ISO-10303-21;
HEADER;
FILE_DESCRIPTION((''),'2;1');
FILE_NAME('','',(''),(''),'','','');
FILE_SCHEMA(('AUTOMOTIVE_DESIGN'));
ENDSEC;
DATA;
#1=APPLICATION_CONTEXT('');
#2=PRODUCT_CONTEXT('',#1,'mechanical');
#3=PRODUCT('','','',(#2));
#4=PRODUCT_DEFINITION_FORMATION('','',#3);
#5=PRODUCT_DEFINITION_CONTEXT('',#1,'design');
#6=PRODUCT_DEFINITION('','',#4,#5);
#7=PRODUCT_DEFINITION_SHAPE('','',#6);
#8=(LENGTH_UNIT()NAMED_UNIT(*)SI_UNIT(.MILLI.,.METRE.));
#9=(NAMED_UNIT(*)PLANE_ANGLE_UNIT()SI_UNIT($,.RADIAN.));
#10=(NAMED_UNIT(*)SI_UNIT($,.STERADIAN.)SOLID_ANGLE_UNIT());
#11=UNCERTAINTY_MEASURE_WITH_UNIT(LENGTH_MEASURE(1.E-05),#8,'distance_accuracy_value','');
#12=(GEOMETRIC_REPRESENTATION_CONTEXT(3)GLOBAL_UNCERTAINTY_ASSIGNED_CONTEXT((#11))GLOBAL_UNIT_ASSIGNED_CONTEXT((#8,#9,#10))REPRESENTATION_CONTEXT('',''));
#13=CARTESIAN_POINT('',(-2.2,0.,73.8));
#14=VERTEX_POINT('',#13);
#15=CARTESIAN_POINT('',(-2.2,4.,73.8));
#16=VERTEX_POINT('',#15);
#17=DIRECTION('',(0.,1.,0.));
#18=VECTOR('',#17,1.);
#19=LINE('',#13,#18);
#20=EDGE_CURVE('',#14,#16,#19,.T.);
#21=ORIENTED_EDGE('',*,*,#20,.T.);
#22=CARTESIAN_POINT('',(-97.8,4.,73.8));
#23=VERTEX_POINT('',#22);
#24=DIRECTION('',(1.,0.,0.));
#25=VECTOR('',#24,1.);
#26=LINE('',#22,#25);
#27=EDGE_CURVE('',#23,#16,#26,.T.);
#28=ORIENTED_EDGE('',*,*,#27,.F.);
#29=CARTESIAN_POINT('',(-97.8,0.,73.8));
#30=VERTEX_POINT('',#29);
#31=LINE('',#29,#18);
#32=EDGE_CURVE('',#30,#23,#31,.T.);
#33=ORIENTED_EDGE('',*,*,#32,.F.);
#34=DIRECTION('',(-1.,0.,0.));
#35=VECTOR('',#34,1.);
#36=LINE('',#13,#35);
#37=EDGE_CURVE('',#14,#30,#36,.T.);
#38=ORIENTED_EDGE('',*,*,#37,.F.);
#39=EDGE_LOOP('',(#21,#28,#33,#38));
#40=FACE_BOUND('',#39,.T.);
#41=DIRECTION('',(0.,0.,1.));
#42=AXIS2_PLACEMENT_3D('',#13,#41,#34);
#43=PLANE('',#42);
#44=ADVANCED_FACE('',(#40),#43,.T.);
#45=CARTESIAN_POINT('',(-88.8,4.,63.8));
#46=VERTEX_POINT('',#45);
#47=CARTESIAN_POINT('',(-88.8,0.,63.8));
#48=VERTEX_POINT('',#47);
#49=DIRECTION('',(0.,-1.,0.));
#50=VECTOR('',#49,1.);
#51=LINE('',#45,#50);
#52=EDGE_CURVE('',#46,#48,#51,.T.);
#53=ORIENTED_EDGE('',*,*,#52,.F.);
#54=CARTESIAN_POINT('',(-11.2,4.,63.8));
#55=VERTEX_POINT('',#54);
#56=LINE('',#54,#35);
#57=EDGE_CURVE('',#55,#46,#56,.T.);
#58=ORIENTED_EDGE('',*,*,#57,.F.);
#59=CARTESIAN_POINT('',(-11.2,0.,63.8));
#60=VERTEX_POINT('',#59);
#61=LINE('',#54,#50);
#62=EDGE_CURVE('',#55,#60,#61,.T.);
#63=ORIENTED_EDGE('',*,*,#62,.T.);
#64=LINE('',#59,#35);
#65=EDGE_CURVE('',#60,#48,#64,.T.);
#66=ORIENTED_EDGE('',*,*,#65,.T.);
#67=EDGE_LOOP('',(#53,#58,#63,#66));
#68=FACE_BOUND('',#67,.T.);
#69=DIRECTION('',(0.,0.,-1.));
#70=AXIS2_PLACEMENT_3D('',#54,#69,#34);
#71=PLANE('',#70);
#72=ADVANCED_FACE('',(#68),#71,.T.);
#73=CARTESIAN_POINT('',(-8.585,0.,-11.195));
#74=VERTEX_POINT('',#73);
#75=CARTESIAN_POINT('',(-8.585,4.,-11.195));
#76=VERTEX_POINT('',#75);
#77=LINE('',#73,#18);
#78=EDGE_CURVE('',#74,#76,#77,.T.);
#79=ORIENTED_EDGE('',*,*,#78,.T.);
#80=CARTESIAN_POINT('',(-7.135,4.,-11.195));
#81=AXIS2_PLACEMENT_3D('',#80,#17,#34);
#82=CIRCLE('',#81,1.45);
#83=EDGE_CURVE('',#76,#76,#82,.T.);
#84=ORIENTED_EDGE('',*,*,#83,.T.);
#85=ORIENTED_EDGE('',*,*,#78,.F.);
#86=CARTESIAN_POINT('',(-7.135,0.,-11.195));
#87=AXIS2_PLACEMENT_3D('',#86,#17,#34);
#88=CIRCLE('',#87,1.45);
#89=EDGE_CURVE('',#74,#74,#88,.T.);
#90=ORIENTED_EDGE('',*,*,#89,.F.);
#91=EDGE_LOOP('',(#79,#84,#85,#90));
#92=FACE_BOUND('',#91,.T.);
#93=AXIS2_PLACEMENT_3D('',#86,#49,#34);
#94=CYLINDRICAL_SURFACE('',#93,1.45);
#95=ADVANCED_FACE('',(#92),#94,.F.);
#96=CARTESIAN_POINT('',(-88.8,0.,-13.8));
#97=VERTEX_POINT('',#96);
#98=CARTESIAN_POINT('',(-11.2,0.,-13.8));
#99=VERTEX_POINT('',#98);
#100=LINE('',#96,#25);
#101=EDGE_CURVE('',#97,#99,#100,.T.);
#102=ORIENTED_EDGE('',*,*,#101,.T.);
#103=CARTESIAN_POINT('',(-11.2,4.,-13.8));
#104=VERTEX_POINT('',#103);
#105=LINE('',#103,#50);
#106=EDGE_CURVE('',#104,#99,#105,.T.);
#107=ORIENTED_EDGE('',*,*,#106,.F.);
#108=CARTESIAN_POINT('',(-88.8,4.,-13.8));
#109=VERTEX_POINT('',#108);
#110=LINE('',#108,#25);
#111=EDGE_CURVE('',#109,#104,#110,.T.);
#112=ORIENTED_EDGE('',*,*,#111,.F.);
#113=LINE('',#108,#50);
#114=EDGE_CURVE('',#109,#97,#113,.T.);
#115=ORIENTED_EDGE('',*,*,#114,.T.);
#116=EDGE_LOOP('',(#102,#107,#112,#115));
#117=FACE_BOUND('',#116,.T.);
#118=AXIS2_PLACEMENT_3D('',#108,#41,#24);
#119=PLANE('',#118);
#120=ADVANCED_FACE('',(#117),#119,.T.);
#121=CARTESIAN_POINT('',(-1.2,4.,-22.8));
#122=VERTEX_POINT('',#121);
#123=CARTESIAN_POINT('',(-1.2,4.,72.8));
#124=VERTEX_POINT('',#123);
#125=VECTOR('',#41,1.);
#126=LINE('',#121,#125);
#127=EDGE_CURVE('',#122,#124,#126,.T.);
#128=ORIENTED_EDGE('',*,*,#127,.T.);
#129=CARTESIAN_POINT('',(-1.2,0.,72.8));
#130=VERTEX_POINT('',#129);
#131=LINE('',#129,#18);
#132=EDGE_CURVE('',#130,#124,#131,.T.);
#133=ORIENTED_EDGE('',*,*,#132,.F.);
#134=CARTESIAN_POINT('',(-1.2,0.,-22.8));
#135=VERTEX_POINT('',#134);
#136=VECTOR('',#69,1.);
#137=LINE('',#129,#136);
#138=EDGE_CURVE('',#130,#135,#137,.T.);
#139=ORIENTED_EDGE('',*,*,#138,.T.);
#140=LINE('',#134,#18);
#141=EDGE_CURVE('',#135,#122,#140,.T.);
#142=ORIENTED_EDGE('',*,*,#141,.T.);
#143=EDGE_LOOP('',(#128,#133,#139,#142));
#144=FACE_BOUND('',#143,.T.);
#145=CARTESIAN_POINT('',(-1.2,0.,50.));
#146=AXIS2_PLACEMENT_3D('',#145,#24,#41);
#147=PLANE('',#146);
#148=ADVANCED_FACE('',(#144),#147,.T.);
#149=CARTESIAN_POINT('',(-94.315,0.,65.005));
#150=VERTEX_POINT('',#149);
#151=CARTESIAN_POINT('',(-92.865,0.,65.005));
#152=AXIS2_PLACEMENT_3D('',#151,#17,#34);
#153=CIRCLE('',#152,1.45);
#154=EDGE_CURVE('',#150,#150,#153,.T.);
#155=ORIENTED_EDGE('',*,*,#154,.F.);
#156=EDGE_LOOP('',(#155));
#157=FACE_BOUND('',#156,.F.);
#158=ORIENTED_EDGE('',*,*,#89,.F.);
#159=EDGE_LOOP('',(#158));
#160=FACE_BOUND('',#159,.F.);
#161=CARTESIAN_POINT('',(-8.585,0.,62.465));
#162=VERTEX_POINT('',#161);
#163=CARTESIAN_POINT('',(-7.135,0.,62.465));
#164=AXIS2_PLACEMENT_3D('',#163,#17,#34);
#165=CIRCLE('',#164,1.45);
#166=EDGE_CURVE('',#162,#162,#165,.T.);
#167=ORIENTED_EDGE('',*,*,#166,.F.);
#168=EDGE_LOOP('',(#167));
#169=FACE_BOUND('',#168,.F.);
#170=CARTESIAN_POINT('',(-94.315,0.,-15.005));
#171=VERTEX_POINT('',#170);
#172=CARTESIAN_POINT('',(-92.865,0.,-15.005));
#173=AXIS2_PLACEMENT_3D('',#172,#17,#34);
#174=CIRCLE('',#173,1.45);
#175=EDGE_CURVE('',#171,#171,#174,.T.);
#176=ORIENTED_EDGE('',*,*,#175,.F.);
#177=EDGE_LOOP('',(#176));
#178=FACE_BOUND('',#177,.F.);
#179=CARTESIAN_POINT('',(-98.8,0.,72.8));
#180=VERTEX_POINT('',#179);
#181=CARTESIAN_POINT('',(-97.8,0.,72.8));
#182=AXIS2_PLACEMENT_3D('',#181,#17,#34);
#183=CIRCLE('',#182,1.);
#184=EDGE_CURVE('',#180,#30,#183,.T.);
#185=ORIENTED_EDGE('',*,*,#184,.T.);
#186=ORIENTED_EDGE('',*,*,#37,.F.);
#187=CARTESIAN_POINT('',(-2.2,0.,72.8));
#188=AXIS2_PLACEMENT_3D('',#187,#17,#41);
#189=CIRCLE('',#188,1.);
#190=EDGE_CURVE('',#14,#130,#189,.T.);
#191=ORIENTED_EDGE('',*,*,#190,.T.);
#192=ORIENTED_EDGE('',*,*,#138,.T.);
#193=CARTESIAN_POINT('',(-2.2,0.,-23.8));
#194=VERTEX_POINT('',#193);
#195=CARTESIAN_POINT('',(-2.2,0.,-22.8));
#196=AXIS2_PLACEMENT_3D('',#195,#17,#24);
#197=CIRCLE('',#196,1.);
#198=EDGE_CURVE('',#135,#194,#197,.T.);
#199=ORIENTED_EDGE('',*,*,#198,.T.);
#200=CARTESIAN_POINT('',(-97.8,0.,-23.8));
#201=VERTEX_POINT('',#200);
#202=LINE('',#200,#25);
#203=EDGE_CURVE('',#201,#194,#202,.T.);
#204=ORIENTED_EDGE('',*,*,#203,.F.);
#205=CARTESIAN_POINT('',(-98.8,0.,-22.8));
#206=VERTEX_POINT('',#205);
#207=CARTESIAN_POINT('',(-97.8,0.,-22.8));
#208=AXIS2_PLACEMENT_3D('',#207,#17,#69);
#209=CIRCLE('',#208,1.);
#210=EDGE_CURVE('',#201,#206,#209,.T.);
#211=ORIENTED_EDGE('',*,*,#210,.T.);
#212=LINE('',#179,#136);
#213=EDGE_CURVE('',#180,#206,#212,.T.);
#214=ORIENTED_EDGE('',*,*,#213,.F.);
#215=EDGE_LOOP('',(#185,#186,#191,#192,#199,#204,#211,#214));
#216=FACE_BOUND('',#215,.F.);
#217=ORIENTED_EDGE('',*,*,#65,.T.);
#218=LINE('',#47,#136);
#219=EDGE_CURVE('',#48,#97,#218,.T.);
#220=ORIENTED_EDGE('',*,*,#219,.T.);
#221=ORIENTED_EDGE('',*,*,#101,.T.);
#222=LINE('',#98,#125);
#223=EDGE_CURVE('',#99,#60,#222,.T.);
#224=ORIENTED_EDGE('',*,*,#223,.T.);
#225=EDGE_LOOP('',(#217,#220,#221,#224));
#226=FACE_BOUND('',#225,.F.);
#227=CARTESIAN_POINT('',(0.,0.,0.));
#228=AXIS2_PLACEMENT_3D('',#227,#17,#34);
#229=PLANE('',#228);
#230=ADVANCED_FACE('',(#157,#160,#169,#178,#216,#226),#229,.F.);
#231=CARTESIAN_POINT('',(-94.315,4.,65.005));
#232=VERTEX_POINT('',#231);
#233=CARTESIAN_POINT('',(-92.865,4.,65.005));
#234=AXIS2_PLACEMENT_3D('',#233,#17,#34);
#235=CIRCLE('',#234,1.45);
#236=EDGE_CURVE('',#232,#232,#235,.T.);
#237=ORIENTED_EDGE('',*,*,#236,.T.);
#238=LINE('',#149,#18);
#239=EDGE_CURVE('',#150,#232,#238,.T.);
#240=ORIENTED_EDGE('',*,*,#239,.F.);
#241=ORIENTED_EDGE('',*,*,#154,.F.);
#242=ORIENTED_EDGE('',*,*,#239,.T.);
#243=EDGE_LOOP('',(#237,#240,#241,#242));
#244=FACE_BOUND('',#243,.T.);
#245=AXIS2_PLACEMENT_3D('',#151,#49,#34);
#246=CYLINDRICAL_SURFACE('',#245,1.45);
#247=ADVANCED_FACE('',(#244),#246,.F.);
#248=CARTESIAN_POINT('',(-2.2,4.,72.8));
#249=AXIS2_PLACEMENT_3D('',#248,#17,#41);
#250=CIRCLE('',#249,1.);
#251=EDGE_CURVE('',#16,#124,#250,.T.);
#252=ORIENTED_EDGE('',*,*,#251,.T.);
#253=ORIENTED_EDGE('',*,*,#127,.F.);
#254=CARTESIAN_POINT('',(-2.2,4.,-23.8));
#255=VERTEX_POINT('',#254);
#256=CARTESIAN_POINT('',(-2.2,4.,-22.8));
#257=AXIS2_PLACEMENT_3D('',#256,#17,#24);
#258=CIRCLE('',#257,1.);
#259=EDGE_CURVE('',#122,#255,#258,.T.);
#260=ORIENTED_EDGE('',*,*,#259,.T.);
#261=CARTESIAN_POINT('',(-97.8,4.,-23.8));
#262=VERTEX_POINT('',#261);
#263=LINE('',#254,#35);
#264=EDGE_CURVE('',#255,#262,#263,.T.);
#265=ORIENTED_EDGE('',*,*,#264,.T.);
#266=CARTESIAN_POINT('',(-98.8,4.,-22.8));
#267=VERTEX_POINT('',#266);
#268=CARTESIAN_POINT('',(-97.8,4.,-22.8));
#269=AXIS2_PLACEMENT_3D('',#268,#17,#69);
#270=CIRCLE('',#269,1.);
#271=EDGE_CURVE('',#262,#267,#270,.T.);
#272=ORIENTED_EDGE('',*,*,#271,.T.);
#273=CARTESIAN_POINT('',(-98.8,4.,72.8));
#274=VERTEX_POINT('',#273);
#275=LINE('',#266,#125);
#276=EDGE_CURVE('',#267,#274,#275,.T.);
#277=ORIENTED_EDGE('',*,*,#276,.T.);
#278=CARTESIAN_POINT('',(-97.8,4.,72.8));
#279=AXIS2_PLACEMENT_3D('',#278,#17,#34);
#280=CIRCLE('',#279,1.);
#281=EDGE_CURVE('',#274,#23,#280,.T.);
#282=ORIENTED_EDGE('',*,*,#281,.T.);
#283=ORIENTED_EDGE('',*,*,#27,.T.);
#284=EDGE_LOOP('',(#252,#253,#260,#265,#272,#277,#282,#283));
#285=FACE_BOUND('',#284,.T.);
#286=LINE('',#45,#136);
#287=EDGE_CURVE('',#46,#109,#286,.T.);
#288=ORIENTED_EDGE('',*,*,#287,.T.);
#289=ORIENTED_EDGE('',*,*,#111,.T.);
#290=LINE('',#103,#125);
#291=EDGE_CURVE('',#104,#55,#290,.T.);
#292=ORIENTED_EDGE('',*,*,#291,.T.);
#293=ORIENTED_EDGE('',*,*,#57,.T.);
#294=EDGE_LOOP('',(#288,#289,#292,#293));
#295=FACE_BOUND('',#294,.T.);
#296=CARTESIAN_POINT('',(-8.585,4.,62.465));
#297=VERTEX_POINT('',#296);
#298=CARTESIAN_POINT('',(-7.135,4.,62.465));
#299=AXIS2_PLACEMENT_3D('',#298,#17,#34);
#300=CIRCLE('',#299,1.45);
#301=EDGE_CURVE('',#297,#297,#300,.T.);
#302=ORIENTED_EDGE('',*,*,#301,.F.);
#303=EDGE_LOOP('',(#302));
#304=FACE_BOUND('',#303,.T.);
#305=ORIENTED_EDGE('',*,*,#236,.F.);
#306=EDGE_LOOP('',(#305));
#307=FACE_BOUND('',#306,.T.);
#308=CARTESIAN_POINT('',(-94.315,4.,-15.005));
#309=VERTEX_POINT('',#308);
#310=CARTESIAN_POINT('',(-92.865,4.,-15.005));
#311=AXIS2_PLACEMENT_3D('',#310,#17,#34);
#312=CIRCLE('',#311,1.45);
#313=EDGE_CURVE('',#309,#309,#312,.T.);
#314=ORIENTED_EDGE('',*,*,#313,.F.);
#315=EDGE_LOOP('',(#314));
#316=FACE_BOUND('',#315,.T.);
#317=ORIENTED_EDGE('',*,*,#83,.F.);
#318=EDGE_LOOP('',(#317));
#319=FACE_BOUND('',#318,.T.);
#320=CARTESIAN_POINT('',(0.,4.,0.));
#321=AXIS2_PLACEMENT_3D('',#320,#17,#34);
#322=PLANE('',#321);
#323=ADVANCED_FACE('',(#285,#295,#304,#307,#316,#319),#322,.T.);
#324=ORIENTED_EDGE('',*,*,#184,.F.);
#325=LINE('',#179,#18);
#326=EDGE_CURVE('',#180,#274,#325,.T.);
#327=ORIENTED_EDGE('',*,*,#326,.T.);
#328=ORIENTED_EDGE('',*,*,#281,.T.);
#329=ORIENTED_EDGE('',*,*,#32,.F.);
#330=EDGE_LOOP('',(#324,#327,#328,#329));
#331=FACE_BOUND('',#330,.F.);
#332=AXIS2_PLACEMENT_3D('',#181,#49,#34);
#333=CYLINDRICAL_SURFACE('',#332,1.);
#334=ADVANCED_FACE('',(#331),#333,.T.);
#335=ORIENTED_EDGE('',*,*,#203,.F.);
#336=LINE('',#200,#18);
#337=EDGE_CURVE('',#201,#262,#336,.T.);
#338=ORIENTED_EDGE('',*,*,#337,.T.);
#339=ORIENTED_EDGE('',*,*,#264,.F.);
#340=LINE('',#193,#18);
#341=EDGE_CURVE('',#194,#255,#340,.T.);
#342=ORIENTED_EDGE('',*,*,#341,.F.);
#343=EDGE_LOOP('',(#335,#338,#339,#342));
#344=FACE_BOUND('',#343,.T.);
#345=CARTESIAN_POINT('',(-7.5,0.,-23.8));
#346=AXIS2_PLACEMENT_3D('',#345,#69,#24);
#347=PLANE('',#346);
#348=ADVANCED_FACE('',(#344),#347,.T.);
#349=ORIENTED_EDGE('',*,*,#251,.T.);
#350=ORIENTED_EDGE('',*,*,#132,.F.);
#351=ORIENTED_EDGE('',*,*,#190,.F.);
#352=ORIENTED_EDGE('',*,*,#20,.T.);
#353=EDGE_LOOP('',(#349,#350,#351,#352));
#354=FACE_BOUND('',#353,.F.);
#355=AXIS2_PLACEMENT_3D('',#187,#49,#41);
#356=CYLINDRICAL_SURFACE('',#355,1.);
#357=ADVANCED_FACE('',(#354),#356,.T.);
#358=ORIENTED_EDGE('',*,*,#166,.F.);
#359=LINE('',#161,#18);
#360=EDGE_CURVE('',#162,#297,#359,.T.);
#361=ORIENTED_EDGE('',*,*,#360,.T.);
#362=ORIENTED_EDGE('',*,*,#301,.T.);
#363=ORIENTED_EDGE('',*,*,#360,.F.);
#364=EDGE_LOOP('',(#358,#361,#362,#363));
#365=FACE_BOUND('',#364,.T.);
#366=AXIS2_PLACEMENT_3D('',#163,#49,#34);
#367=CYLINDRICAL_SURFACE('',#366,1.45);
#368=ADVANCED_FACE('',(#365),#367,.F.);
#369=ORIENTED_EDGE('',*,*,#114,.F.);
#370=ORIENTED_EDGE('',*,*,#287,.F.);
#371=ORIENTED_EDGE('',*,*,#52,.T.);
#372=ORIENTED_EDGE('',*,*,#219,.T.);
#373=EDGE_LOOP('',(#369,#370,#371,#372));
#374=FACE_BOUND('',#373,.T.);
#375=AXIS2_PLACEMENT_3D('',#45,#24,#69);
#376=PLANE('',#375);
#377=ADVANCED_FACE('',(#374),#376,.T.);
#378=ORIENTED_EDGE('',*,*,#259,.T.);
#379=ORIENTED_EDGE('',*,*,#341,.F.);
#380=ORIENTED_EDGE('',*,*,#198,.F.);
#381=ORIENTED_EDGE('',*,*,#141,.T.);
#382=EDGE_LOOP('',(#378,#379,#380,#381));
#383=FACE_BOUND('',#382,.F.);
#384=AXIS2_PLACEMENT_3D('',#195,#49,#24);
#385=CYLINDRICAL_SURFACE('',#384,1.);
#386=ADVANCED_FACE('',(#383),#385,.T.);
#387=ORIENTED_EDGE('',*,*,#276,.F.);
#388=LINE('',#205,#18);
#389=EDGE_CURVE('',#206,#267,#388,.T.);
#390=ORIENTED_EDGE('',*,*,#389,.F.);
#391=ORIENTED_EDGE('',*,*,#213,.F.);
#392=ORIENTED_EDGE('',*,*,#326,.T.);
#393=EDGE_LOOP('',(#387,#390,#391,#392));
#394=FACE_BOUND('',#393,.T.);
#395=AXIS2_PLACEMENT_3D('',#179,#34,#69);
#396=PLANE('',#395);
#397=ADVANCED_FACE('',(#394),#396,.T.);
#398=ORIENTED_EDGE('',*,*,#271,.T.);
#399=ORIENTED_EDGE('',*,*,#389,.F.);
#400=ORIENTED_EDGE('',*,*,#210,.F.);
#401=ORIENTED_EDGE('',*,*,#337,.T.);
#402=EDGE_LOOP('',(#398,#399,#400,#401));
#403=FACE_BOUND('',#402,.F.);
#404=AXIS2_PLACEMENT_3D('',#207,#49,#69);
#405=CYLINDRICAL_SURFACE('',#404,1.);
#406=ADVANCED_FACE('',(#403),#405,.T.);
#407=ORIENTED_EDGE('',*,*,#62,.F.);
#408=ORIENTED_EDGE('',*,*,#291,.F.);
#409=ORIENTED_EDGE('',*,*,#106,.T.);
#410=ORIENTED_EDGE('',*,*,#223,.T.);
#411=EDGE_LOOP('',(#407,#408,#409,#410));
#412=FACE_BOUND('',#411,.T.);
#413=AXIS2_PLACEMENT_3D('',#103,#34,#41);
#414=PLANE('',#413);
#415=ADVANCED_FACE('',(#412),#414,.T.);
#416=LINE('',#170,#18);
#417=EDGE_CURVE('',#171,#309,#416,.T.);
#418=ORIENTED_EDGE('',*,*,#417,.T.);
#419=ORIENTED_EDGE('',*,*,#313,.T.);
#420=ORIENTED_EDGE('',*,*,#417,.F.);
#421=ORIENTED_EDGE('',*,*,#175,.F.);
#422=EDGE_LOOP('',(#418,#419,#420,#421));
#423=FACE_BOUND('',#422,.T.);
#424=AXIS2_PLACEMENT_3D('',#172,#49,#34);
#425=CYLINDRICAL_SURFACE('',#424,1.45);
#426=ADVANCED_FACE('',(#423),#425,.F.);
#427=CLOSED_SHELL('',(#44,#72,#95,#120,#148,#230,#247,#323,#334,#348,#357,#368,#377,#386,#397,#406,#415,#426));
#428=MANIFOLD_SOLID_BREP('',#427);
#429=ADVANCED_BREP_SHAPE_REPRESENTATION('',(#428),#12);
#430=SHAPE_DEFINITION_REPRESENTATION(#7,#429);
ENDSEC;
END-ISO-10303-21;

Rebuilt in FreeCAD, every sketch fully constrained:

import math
import FreeCAD as App
import Part
import Sketcher

V = App.Vector


def add_polygon(sketch, points):
    """Adds a closed chain of lines whose ends are joined by coincident constraints."""
    first, n = sketch.GeometryCount, len(points)
    for a, b in zip(points, points[1:] + points[:1]):
        sketch.addGeometry(Part.LineSegment(App.Vector(*a, 0), App.Vector(*b, 0)), False)
    for i in range(n):
        sketch.addConstraint(Sketcher.Constraint("Coincident", first + i, 2, first + (i + 1) % n, 1))

doc = App.newDocument("Part")
body = doc.addObject("PartDesign::Body", "Body")

# Sketch on XZ plane
sketch1 = doc.addObject("Sketcher::SketchObject", "Sketch")
body.addObject(sketch1)
sketch1.AttachmentSupport = (doc.XZ_Plane, [""])
sketch1.MapMode = "FlatFace"
sketch1.addGeometry([
    Part.LineSegment(V(-1.2, 72.8, 0), V(-1.2, -22.8, 0)),  # 0
    Part.ArcOfCircle(Part.Circle(V(-2.2, -22.8, 0), V(0, 0, 1), 1), math.radians(-90), math.radians(0)),  # 1
    Part.LineSegment(V(-2.2, -23.8, 0), V(-97.8, -23.8, 0)),  # 2
    Part.ArcOfCircle(Part.Circle(V(-97.8, -22.8, 0), V(0, 0, 1), 1), math.radians(180), math.radians(270)),  # 3
    Part.LineSegment(V(-98.8, -22.8, 0), V(-98.8, 72.8, 0)),  # 4
    Part.ArcOfCircle(Part.Circle(V(-97.8, 72.8, 0), V(0, 0, 1), 1), math.radians(90), math.radians(180)),  # 5
    Part.LineSegment(V(-97.8, 73.8, 0), V(-2.2, 73.8, 0)),  # 6
    Part.ArcOfCircle(Part.Circle(V(-2.2, 72.8, 0), V(0, 0, 1), 1), math.radians(0), math.radians(90)),  # 7
    Part.Circle(V(-7.135, -11.195, 0), V(0, 0, 1), 1.45),  # 8
    Part.Circle(V(-92.865, -15.005, 0), V(0, 0, 1), 1.45),  # 9
    Part.Circle(V(-7.135, 62.465, 0), V(0, 0, 1), 1.45),  # 10
    Part.Circle(V(-92.865, 65.005, 0), V(0, 0, 1), 1.45),  # 11
], False)
sketch1.addConstraint([
    Sketcher.Constraint("Tangent", 0, 2, 1, 2),
    Sketcher.Constraint("Tangent", 1, 1, 2, 1),
    Sketcher.Constraint("Tangent", 2, 2, 3, 2),
    Sketcher.Constraint("Tangent", 3, 1, 4, 1),
    Sketcher.Constraint("Tangent", 4, 2, 5, 2),
    Sketcher.Constraint("Tangent", 5, 1, 6, 1),
    Sketcher.Constraint("Tangent", 6, 2, 7, 2),
    Sketcher.Constraint("Tangent", 7, 1, 0, 1),
    Sketcher.Constraint("Vertical", 0),
    Sketcher.Constraint("Horizontal", 2),
    Sketcher.Constraint("Vertical", 4),
    Sketcher.Constraint("Horizontal", 6),
    Sketcher.Constraint("Equal", 1, 3),
    Sketcher.Constraint("Equal", 3, 5),
    Sketcher.Constraint("Equal", 5, 7),
    Sketcher.Constraint("Equal", 8, 9),
    Sketcher.Constraint("Equal", 9, 10),
    Sketcher.Constraint("Equal", 10, 11),
    Sketcher.Constraint("Vertical", 8, 3, 10, 3),
    Sketcher.Constraint("Vertical", 9, 3, 11, 3),
    Sketcher.Constraint("Equal", 6, 0),
    Sketcher.Constraint("Radius", 1, 1.0),
    Sketcher.Constraint("Diameter", 8, 2.9),
    Sketcher.Constraint("DistanceX", 2, 2, 2, 1, 95.6),
    Sketcher.Constraint("DistanceX", 1, 3, -1, 1, 2.2),
    Sketcher.Constraint("DistanceY", 1, 3, -1, 1, 22.8),
    Sketcher.Constraint("DistanceX", 9, 3, 8, 3, 85.73),
    Sketcher.Constraint("DistanceY", 9, 3, 8, 3, 3.81),
    Sketcher.Constraint("DistanceY", 8, 3, 10, 3, 73.66),
    Sketcher.Constraint("DistanceY", 9, 3, 11, 3, 80.01),
    Sketcher.Constraint("DistanceX", 8, 3, -1, 1, 7.135),
    Sketcher.Constraint("DistanceY", 8, 3, -1, 1, 11.195),
])
pad1 = doc.addObject("PartDesign::Pad", "Pad")
body.addObject(pad1)
pad1.Profile = sketch1
pad1.Length = 4
pad1.Reversed = True

# Sketch on XZ plane
sketch2 = doc.addObject("Sketcher::SketchObject", "Sketch001")
body.addObject(sketch2)
sketch2.AttachmentSupport = (doc.XZ_Plane, [""])
sketch2.MapMode = "FlatFace"
sketch2.AttachmentOffset = App.Placement(V(0, 0, -4), App.Rotation())
add_polygon(sketch2, [(-88.8, -13.8), (-88.8, 63.8), (-11.2, 63.8), (-11.2, -13.8)])  # lines 0-3
sketch2.addConstraint([
    Sketcher.Constraint("Vertical", 0),
    Sketcher.Constraint("Horizontal", 1),
    Sketcher.Constraint("Vertical", 2),
    Sketcher.Constraint("Horizontal", 3),
    Sketcher.Constraint("Equal", 3, 0),
    Sketcher.Constraint("DistanceX", 1, 1, 1, 2, 77.6),
    Sketcher.Constraint("DistanceX", 0, 2, -1, 1, 88.8),
    Sketcher.Constraint("DistanceY", -1, 1, 0, 2, 63.8),
])
pocket1 = doc.addObject("PartDesign::Pocket", "Pocket")
body.addObject(pocket1)
pocket1.Profile = sketch2
pocket1.Length = 4
pocket1.Reversed = True

doc.recompute()
